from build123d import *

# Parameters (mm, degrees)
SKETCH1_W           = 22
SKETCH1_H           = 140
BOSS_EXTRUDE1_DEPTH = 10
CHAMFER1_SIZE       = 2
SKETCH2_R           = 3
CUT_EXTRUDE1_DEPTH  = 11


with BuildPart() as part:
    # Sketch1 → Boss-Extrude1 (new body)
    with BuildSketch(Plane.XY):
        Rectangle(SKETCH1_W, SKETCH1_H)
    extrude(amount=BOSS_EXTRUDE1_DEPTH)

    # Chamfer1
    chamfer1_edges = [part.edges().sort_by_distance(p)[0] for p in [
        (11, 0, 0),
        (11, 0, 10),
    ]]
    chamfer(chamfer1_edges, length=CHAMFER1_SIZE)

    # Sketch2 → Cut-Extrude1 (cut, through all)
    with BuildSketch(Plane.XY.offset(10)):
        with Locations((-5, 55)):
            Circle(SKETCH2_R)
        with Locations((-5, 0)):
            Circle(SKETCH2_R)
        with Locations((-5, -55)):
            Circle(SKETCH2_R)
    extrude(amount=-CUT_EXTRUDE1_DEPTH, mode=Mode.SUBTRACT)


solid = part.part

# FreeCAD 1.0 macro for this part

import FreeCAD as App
import Part
import Sketcher
Q = App.Units.Quantity


def edges_at(feature, points):
    """Names of the edges that pass closest to the given points."""
    edges = feature.Shape.Edges
    near = lambda p: min(range(len(edges)), key=lambda i: edges[i].distToShape(Part.Vertex(*p))[0])
    return sorted({f"Edge{near(p) + 1}" for p in points})

doc = App.newDocument("Part")
body = doc.addObject("PartDesign::Body", "Body")

sketch1 = body.newObject("Sketcher::SketchObject", "Sketch")
sketch1.AttachmentSupport = (doc.getObject("XY_Plane"), [""])
sketch1.MapMode = "FlatFace"
sketch1.addGeometry([
    Part.LineSegment(App.Vector(-11, 70, 0), App.Vector(-11, -70, 0)),
    Part.LineSegment(App.Vector(-11, -70, 0), App.Vector(11, -70, 0)),
    Part.LineSegment(App.Vector(11, -70, 0), App.Vector(11, 70, 0)),
    Part.LineSegment(App.Vector(11, 70, 0), App.Vector(-11, 70, 0)),
], False)
sketch1.addConstraint([
    Sketcher.Constraint("Coincident", 0, 2, 1, 1),
    Sketcher.Constraint("Coincident", 1, 2, 2, 1),
    Sketcher.Constraint("Coincident", 2, 2, 3, 1),
    Sketcher.Constraint("Coincident", 3, 2, 0, 1),
    Sketcher.Constraint("Vertical", 0),
    Sketcher.Constraint("Horizontal", 1),
    Sketcher.Constraint("Vertical", 2),
    Sketcher.Constraint("Horizontal", 3),
    Sketcher.Constraint("Symmetric", 0, 2, 2, 2, -1, 1),
    Sketcher.Constraint("DistanceX", 1, 1, 1, 2, Q("22 mm")),
    Sketcher.Constraint("DistanceY", 0, 2, 0, 1, Q("140 mm")),
])
pad1 = body.newObject("PartDesign::Pad", "Pad")
pad1.Profile = sketch1
pad1.Length = 10
doc.recompute()

chamfer = body.newObject("PartDesign::Chamfer", "Chamfer")
chamfer.Base = (pad1, edges_at(pad1, [(11, 0, 0), (11, 0, 10)]))
chamfer.Size = 2

sketch2 = body.newObject("Sketcher::SketchObject", "Sketch001")
sketch2.AttachmentSupport = (doc.getObject("XY_Plane"), [""])
sketch2.MapMode = "FlatFace"
sketch2.AttachmentOffset = App.Placement(App.Vector(0, 0, 10), App.Rotation())
sketch2.addGeometry([
    Part.Circle(App.Vector(-5, 55, 0), App.Vector(0, 0, 1), 3),
    Part.Circle(App.Vector(-5, 0, 0), App.Vector(0, 0, 1), 3),
    Part.Circle(App.Vector(-5, -55, 0), App.Vector(0, 0, 1), 3),
], False)
sketch2.addConstraint([
    Sketcher.Constraint("Equal", 0, 1),
    Sketcher.Constraint("Equal", 1, 2),
    Sketcher.Constraint("Symmetric", 0, 3, 2, 3, -1),
    Sketcher.Constraint("PointOnObject", 1, 3, -1),
    Sketcher.Constraint("Vertical", 0, 3, 1, 3),
    Sketcher.Constraint("Diameter", 0, Q("6 mm")),
    Sketcher.Constraint("DistanceX", 0, 3, -1, 1, Q("5 mm")),
    Sketcher.Constraint("DistanceY", -1, 1, 0, 3, Q("55 mm")),
])
pocket1 = body.newObject("PartDesign::Pocket", "Pocket")
pocket1.Profile = sketch2
pocket1.Type = "ThroughAll"

doc.recompute()
